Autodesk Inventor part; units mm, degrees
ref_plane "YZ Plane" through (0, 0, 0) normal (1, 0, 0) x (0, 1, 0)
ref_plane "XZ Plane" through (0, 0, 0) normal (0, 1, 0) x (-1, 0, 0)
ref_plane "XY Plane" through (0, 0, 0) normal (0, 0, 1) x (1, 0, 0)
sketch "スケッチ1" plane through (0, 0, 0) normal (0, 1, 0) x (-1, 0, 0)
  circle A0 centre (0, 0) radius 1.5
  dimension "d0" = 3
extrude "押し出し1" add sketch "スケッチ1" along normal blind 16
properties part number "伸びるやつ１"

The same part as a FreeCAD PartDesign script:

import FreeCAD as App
import Part
import Sketcher
from FreeCAD import Vector
Q = App.Units.Quantity

doc = App.newDocument("Part")
params = doc.addObject("Spreadsheet::Sheet", "Params")
for row, (alias, value) in enumerate([
    ("sketch1_diameter", "3 mm"),
    ("pad1_length", "16 mm"),
], start=1):
    params.set(f"A{row}", alias)
    params.set(f"B{row}", "=" + value)
    params.setAlias(f"B{row}", alias)

body = doc.addObject("PartDesign::Body", "Body")

# Sketch on XZ plane
sketch1 = body.newObject("Sketcher::SketchObject", "Sketch")
sketch1.AttachmentSupport = (doc.getObject("XZ_Plane"), [""])
sketch1.MapMode = "FlatFace"
sketch1.addGeometry(Part.Circle(Vector(0, 0, 0), Vector(0, 0, 1), 1.5), False)
sketch1.addConstraint(Sketcher.Constraint("Coincident", 0, 3, -1, 1))
sketch1.addConstraint(Sketcher.Constraint("Diameter", 0, Q("3 mm")))
sketch1.setExpression("Constraints[1]", "Params.sketch1_diameter")
pad1 = body.newObject("PartDesign::Pad", "Pad")
pad1.Profile = sketch1
pad1.setExpression("Length", "Params.pad1_length")
pad1.Reversed = True

doc.recompute()
